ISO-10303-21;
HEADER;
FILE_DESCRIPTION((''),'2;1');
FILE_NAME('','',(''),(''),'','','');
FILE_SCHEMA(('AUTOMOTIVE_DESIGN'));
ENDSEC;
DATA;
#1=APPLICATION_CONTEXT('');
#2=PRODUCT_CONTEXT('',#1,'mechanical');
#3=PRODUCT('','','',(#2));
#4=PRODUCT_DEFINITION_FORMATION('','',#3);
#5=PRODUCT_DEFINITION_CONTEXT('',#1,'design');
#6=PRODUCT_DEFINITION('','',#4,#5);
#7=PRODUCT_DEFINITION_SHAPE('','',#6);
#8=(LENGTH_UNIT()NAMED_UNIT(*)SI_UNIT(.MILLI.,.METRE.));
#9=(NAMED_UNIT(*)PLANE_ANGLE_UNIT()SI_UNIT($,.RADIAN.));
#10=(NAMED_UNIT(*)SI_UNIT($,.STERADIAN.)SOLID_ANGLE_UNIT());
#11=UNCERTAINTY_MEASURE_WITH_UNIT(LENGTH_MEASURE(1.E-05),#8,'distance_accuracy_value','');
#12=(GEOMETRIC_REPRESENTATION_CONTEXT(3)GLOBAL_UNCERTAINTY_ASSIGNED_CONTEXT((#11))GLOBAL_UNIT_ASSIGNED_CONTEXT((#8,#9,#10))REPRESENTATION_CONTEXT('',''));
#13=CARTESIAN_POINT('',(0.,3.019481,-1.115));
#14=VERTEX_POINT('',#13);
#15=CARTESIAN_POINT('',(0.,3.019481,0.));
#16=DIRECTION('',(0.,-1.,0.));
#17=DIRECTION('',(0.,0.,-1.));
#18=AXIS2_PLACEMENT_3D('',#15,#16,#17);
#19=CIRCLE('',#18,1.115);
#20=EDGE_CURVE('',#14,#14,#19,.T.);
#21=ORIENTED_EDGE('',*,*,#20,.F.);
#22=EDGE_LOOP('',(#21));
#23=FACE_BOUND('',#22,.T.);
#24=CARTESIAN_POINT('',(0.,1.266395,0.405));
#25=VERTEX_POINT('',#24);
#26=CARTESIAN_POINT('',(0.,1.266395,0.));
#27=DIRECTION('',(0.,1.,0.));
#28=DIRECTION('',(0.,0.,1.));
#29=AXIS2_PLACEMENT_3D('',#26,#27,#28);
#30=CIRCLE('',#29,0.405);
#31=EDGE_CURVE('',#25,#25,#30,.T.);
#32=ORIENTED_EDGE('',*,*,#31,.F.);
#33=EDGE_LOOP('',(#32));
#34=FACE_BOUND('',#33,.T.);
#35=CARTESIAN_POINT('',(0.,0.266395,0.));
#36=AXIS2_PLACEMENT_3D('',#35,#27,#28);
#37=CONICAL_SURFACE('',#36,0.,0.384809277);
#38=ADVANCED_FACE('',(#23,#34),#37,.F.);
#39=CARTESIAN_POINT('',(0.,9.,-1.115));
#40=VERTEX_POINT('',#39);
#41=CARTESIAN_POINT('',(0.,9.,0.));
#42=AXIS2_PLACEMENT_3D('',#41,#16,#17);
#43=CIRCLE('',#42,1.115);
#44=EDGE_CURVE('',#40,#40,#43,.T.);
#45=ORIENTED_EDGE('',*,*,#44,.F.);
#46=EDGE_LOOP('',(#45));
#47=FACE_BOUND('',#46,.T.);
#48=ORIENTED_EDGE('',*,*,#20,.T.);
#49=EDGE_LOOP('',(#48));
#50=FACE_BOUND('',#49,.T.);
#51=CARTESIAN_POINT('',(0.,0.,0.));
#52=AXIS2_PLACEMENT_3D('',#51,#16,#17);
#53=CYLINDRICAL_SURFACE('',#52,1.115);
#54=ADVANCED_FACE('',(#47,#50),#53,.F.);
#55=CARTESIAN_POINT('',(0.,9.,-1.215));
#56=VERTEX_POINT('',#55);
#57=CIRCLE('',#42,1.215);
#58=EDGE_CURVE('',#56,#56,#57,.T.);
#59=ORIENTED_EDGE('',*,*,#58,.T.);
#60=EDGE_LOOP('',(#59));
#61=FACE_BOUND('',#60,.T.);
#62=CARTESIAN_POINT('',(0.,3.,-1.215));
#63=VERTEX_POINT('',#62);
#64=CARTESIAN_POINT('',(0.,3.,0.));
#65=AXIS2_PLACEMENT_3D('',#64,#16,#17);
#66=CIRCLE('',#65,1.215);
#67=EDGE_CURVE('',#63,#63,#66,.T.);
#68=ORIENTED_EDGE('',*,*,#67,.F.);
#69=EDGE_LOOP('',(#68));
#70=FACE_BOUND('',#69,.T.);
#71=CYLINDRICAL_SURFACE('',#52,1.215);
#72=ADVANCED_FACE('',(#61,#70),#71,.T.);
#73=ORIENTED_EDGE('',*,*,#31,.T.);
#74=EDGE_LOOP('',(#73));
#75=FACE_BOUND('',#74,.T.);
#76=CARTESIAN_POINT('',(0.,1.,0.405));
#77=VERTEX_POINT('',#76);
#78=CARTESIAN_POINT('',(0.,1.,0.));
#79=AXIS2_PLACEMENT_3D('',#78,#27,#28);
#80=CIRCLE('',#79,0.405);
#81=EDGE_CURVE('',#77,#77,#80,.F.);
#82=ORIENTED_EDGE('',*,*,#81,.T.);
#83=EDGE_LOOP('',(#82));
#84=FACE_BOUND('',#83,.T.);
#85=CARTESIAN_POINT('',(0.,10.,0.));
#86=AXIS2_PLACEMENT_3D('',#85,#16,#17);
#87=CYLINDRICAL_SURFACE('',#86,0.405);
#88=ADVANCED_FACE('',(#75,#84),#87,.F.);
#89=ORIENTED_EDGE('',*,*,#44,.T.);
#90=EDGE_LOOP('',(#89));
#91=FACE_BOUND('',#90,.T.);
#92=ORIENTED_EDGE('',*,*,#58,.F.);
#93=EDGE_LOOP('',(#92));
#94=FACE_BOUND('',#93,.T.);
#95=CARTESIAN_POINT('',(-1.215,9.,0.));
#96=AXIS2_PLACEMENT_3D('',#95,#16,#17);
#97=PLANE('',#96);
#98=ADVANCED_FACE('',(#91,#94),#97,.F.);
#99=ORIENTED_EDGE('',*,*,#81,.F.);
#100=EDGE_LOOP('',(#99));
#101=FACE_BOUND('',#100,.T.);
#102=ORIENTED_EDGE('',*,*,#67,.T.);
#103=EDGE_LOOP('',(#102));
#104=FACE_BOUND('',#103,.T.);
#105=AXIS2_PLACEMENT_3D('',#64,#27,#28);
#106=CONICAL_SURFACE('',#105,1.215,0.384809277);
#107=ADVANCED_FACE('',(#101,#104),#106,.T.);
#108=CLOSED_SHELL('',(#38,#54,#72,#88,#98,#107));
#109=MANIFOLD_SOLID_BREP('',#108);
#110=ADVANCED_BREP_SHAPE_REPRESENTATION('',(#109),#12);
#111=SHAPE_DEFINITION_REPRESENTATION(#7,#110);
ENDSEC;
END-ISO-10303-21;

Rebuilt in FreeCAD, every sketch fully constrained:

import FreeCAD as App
import Part
import Sketcher

V = App.Vector
Q = App.Units.Quantity

doc = App.newDocument("Part")
body = doc.addObject("PartDesign::Body", "Body")

sketch1 = doc.addObject("Sketcher::SketchObject", "Sketch")
body.addObject(sketch1)
sketch1.AttachmentSupport = (doc.XY_Plane, [""])
sketch1.MapMode = "FlatFace"
sketch1.addGeometry([
    Part.LineSegment(V(-1.215, 9, 0), V(-1.215, 3, 0)),
    Part.LineSegment(V(-1.215, 3, 0), V(0, 0, 0)),
    Part.LineSegment(V(0, 0, 0), V(0, 0.266395, 0)),
    Part.LineSegment(V(0, 0.266395, 0), V(-1.115, 3.019481, 0)),
    Part.LineSegment(V(-1.115, 3.019481, 0), V(-1.115, 9, 0)),
    Part.LineSegment(V(-1.115, 9, 0), V(-1.215, 9, 0)),
], False)
sketch1.addConstraint([
    Sketcher.Constraint("Coincident", 0, 2, 1, 1),
    Sketcher.Constraint("Coincident", 1, 2, 2, 1),
    Sketcher.Constraint("Coincident", 2, 2, 3, 1),
    Sketcher.Constraint("Coincident", 3, 2, 4, 1),
    Sketcher.Constraint("Coincident", 4, 2, 5, 1),
    Sketcher.Constraint("Coincident", 5, 2, 0, 1),
    Sketcher.Constraint("Vertical", 0),
    Sketcher.Constraint("Vertical", 2),
    Sketcher.Constraint("Vertical", 4),
    Sketcher.Constraint("Horizontal", 5),
    Sketcher.Constraint("Coincident", 1, 2, -1, 1),
    Sketcher.Constraint("Parallel", 1, 3),
    Sketcher.Constraint("DistanceY", 0, 2, 0, 1, Q("6 mm")),
    Sketcher.Constraint("DistanceX", 5, 2, 5, 1, Q("0.1 mm")),
    Sketcher.Constraint("DistanceY", -1, 1, 0, 2, Q("3 mm")),
    Sketcher.Constraint("DistanceX", 0, 2, -1, 1, Q("1.215 mm")),
    Sketcher.Constraint("DistanceY", 4, 1, 4, 2, Q("5.980519 mm")),
])
revolution = doc.addObject("PartDesign::Revolution", "Revolution")
body.addObject(revolution)
revolution.Profile = sketch1
revolution.ReferenceAxis = (sketch1, ["V_Axis"])
revolution.Angle = 360

sketch2 = doc.addObject("Sketcher::SketchObject", "Sketch001")
body.addObject(sketch2)
sketch2.AttachmentSupport = (doc.XZ_Plane, [""])
sketch2.MapMode = "FlatFace"
sketch2.addGeometry(Part.Circle(V(0, 0, 0), V(0, 0, 1), 0.405), False)
sketch2.addConstraint([
    Sketcher.Constraint("Coincident", 0, 3, -1, 1),
    Sketcher.Constraint("Diameter", 0, Q("0.81 mm")),
])
pocket1 = doc.addObject("PartDesign::Pocket", "Pocket")
body.addObject(pocket1)
pocket1.Profile = sketch2
pocket1.Length = 10

doc.recompute()
